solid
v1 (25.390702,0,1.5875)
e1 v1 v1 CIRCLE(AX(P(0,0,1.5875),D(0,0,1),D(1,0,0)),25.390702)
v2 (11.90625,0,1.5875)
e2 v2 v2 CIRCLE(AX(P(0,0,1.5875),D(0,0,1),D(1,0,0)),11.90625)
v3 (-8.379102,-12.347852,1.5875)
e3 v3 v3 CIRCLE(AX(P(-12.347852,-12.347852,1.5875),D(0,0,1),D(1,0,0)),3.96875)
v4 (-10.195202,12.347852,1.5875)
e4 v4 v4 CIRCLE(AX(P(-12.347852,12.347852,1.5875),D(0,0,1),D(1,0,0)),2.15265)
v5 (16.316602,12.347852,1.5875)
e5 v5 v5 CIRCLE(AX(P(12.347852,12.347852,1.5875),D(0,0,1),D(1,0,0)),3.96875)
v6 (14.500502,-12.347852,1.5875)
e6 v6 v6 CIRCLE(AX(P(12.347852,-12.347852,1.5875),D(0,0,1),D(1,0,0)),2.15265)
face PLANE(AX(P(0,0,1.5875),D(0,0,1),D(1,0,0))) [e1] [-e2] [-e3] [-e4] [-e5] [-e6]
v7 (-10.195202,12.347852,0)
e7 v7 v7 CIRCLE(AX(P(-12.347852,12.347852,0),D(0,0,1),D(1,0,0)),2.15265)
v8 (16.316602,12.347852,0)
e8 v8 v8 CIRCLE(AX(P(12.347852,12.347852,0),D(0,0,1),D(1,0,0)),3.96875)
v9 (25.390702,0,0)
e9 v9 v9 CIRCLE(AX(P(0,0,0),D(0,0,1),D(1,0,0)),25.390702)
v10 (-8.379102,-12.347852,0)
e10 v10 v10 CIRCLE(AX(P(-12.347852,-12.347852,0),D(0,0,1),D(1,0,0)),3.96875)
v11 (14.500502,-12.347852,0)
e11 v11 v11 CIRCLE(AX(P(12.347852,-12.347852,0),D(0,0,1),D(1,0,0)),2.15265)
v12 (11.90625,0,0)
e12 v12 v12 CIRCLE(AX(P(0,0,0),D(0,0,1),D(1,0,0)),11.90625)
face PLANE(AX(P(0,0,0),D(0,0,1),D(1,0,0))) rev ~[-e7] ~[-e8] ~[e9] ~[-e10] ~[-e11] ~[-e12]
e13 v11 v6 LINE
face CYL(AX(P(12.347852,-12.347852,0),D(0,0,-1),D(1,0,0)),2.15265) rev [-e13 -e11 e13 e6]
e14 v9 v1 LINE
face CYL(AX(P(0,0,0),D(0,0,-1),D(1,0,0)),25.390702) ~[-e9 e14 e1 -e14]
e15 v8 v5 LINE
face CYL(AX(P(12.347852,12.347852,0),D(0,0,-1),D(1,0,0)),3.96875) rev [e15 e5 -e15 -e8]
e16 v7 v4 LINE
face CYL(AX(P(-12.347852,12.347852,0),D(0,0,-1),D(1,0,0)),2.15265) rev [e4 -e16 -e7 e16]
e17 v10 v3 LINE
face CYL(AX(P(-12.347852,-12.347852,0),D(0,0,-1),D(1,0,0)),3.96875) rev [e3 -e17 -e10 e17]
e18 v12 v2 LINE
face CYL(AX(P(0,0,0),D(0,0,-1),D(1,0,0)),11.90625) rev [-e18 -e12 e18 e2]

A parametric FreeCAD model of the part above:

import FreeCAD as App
import Part
import Sketcher
from FreeCAD import Vector
Q = App.Units.Quantity

doc = App.newDocument("Part")
body = doc.addObject("PartDesign::Body", "Body")

sketch1 = body.newObject("Sketcher::SketchObject", "Sketch")
sketch1.AttachmentSupport = (doc.getObject("XY_Plane"), [""])
sketch1.MapMode = "FlatFace"
sketch1.addGeometry([
    Part.Circle(Vector(0, 0, 0), Vector(0, 0, 1), 25.4),
    Part.Circle(Vector(-12.3, -12.3, 0), Vector(0, 0, 1), 4),
    Part.Circle(Vector(12.3, -12.3, 0), Vector(0, 0, 1), 2.2),
    Part.Circle(Vector(-12.3, 12.3, 0), Vector(0, 0, 1), 2.2),
    Part.Circle(Vector(0, 0, 0), Vector(0, 0, 1), 11.9),
    Part.Circle(Vector(12.3, 12.3, 0), Vector(0, 0, 1), 4),
], False)
sketch1.addConstraint([
    Sketcher.Constraint("Coincident", 0, 3, -1, 1),
    Sketcher.Constraint("Coincident", 4, 3, -1, 1),
    Sketcher.Constraint("Equal", 2, 3),
    Sketcher.Constraint("Equal", 1, 5),
    Sketcher.Constraint("Symmetric", 2, 3, 3, 3, -1, 1),
    Sketcher.Constraint("Symmetric", 1, 3, 5, 3, -1, 1),
    Sketcher.Constraint("Symmetric", 1, 3, 2, 3, -2),
    Sketcher.Constraint("Diameter", 1, Q("0.3125 in")),
    Sketcher.Constraint("Diameter", 4, Q("0.9375 in")),
    Sketcher.Constraint("Diameter", 2, Q("0.1695 in")),
    Sketcher.Constraint("Diameter", 0, 50.781404),
    Sketcher.Constraint("DistanceX", 1, 3, -1, 1, 12.347852),
    Sketcher.Constraint("DistanceY", 1, 3, -1, 1, 12.347852),
])
pad1 = body.newObject("PartDesign::Pad", "Pad")
pad1.Profile = sketch1
pad1.Length = Q("0.0625 in")

doc.recompute()
